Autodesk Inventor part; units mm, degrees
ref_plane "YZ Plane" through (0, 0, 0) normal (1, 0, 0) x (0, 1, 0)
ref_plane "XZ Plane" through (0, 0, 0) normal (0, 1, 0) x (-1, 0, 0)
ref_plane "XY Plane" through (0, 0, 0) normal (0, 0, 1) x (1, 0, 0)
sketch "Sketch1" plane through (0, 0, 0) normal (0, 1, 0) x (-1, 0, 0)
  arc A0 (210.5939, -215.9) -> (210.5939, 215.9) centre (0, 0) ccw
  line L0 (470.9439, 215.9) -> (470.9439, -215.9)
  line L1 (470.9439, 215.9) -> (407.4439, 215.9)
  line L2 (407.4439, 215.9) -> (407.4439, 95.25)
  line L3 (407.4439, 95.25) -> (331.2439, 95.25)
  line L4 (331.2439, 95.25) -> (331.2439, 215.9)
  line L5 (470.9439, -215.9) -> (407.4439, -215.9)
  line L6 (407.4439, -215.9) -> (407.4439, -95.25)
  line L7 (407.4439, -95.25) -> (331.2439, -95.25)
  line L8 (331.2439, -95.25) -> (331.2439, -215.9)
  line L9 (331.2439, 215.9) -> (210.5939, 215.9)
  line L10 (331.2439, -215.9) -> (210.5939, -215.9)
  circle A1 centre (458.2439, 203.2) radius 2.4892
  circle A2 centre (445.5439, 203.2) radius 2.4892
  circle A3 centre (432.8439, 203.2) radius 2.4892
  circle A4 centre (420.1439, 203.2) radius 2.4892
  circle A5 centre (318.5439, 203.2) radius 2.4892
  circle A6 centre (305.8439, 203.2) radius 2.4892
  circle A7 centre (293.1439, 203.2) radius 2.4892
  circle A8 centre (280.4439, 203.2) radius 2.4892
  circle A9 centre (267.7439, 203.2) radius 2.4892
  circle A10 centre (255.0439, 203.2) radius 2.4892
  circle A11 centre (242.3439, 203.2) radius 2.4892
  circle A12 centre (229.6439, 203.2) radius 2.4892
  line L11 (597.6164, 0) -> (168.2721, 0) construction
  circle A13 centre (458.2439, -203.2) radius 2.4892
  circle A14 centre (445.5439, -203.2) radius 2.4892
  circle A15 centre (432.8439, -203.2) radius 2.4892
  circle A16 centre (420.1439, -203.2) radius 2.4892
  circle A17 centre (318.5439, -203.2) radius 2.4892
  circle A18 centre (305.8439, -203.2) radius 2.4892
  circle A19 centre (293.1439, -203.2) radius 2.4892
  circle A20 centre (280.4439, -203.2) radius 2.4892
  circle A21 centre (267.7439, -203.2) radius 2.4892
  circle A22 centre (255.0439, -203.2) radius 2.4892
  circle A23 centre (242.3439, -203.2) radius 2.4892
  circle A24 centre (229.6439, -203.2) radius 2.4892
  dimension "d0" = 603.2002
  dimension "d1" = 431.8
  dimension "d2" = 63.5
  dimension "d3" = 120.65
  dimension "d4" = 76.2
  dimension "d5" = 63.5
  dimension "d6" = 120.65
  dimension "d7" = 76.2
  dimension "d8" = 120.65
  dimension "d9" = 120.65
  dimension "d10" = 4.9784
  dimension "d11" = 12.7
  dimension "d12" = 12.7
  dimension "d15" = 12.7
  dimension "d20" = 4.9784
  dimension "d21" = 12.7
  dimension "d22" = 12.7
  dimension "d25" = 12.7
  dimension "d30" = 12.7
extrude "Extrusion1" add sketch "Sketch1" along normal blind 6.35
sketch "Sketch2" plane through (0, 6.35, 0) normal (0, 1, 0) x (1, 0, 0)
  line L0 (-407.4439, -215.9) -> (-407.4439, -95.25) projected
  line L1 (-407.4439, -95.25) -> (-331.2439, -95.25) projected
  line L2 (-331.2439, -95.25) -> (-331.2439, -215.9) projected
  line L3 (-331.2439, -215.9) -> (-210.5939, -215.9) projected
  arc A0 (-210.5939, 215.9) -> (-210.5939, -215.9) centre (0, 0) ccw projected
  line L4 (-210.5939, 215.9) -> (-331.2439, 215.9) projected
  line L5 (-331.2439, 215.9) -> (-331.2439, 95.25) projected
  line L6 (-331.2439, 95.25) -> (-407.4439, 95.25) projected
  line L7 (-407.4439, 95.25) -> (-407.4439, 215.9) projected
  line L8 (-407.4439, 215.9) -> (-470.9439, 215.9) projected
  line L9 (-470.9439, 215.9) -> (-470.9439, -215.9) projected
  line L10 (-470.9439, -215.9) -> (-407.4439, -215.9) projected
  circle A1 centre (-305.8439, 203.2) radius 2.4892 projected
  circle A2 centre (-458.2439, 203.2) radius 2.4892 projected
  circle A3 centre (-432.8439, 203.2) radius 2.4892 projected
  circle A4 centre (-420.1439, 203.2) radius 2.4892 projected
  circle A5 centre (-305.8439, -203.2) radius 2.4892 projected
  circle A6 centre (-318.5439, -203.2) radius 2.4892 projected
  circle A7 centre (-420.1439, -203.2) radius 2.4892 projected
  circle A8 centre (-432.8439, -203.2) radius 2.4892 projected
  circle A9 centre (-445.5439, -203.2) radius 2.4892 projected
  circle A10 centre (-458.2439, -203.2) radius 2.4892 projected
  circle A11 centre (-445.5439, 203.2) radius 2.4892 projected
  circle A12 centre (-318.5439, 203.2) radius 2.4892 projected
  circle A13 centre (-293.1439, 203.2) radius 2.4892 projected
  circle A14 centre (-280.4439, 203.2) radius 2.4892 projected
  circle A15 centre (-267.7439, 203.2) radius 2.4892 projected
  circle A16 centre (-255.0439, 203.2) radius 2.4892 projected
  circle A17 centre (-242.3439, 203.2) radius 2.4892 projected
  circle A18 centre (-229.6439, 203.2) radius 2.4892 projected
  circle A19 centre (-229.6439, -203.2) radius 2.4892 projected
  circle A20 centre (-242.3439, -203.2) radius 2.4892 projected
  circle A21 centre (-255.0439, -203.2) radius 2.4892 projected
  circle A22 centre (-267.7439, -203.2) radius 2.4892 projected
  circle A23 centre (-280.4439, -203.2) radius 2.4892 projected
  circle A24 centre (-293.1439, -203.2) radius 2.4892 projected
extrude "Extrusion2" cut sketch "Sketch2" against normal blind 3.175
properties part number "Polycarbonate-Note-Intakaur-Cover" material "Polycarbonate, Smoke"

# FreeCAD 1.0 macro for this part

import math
import FreeCAD as App
import Part
import Sketcher
from FreeCAD import Vector
Q = App.Units.Quantity

doc = App.newDocument("Part")
body = doc.addObject("PartDesign::Body", "Body")

sketch1 = doc.addObject("Sketcher::SketchObject", "Sketch")
body.addObject(sketch1)
sketch1.AttachmentSupport = (doc.XZ_Plane, [""])
sketch1.MapMode = "FlatFace"
sketch1.addGeometry([
    Part.ArcOfCircle(Part.Circle(Vector(0, 0, 0), Vector(0, 0, 1), 301.6), math.radians(134), math.radians(226)),
    Part.LineSegment(Vector(-210.6, -215.9, 0), Vector(-331.2, -215.9, 0)),
    Part.LineSegment(Vector(-331.2, -215.9, 0), Vector(-331.2, -95.2, 0)),
    Part.LineSegment(Vector(-331.2, -95.2, 0), Vector(-407.4, -95.2, 0)),
    Part.LineSegment(Vector(-407.4, -95.2, 0), Vector(-407.4, -215.9, 0)),
    Part.LineSegment(Vector(-407.4, -215.9, 0), Vector(-470.9, -215.9, 0)),
    Part.LineSegment(Vector(-470.9, -215.9, 0), Vector(-470.9, 215.9, 0)),
    Part.LineSegment(Vector(-470.9, 215.9, 0), Vector(-407.4, 215.9, 0)),
    Part.LineSegment(Vector(-407.4, 215.9, 0), Vector(-407.4, 95.2, 0)),
    Part.LineSegment(Vector(-407.4, 95.2, 0), Vector(-331.2, 95.2, 0)),
    Part.LineSegment(Vector(-331.2, 95.2, 0), Vector(-331.2, 215.9, 0)),
    Part.LineSegment(Vector(-331.2, 215.9, 0), Vector(-210.6, 215.9, 0)),
    Part.Circle(Vector(-229.6, -203.2, 0), Vector(0, 0, 1), 2.5),
    Part.Circle(Vector(-242.3, -203.2, 0), Vector(0, 0, 1), 2.5),
    Part.Circle(Vector(-255, -203.2, 0), Vector(0, 0, 1), 2.5),
    Part.Circle(Vector(-267.7, -203.2, 0), Vector(0, 0, 1), 2.5),
    Part.Circle(Vector(-280.4, -203.2, 0), Vector(0, 0, 1), 2.5),
    Part.Circle(Vector(-293.1, -203.2, 0), Vector(0, 0, 1), 2.5),
    Part.Circle(Vector(-305.8, -203.2, 0), Vector(0, 0, 1), 2.5),
    Part.Circle(Vector(-318.5, -203.2, 0), Vector(0, 0, 1), 2.5),
    Part.Circle(Vector(-420.1, -203.2, 0), Vector(0, 0, 1), 2.5),
    Part.Circle(Vector(-432.8, -203.2, 0), Vector(0, 0, 1), 2.5),
    Part.Circle(Vector(-445.5, -203.2, 0), Vector(0, 0, 1), 2.5),
    Part.Circle(Vector(-458.2, -203.2, 0), Vector(0, 0, 1), 2.5),
    Part.Circle(Vector(-229.6, 203.2, 0), Vector(0, 0, 1), 2.5),
    Part.Circle(Vector(-242.3, 203.2, 0), Vector(0, 0, 1), 2.5),
    Part.Circle(Vector(-255, 203.2, 0), Vector(0, 0, 1), 2.5),
    Part.Circle(Vector(-267.7, 203.2, 0), Vector(0, 0, 1), 2.5),
    Part.Circle(Vector(-280.4, 203.2, 0), Vector(0, 0, 1), 2.5),
    Part.Circle(Vector(-293.1, 203.2, 0), Vector(0, 0, 1), 2.5),
    Part.Circle(Vector(-305.8, 203.2, 0), Vector(0, 0, 1), 2.5),
    Part.Circle(Vector(-318.5, 203.2, 0), Vector(0, 0, 1), 2.5),
    Part.Circle(Vector(-420.1, 203.2, 0), Vector(0, 0, 1), 2.5),
    Part.Circle(Vector(-432.8, 203.2, 0), Vector(0, 0, 1), 2.5),
    Part.Circle(Vector(-445.5, 203.2, 0), Vector(0, 0, 1), 2.5),
    Part.Circle(Vector(-458.2, 203.2, 0), Vector(0, 0, 1), 2.5),
], False)
sketch1.addConstraint([
    Sketcher.Constraint("Coincident", 0, 2, 1, 1),
    Sketcher.Constraint("Coincident", 1, 2, 2, 1),
    Sketcher.Constraint("Coincident", 2, 2, 3, 1),
    Sketcher.Constraint("Coincident", 3, 2, 4, 1),
    Sketcher.Constraint("Coincident", 4, 2, 5, 1),
    Sketcher.Constraint("Coincident", 5, 2, 6, 1),
    Sketcher.Constraint("Coincident", 6, 2, 7, 1),
    Sketcher.Constraint("Coincident", 7, 2, 8, 1),
    Sketcher.Constraint("Coincident", 8, 2, 9, 1),
    Sketcher.Constraint("Coincident", 9, 2, 10, 1),
    Sketcher.Constraint("Coincident", 10, 2, 11, 1),
    Sketcher.Constraint("Coincident", 11, 2, 0, 1),
    Sketcher.Constraint("Horizontal", 1),
    Sketcher.Constraint("Vertical", 2),
    Sketcher.Constraint("Horizontal", 3),
    Sketcher.Constraint("Vertical", 4),
    Sketcher.Constraint("Horizontal", 5),
    Sketcher.Constraint("Vertical", 6),
    Sketcher.Constraint("Horizontal", 7),
    Sketcher.Constraint("Vertical", 8),
    Sketcher.Constraint("Horizontal", 9),
    Sketcher.Constraint("Vertical", 10),
    Sketcher.Constraint("Horizontal", 11),
    Sketcher.Constraint("Coincident", 0, 3, -1, 1),
    Sketcher.Constraint("Equal", 12, 13),
    Sketcher.Constraint("Equal", 13, 14),
    Sketcher.Constraint("Equal", 14, 15),
    Sketcher.Constraint("Equal", 15, 16),
    Sketcher.Constraint("Equal", 16, 17),
    Sketcher.Constraint("Equal", 17, 18),
    Sketcher.Constraint("Equal", 18, 19),
    Sketcher.Constraint("Equal", 19, 20),
    Sketcher.Constraint("Equal", 20, 21),
    Sketcher.Constraint("Equal", 21, 22),
    Sketcher.Constraint("Equal", 22, 23),
    Sketcher.Constraint("Equal", 23, 24),
    Sketcher.Constraint("Equal", 24, 25),
    Sketcher.Constraint("Equal", 25, 26),
    Sketcher.Constraint("Equal", 26, 27),
    Sketcher.Constraint("Equal", 27, 28),
    Sketcher.Constraint("Equal", 28, 29),
    Sketcher.Constraint("Equal", 29, 30),
    Sketcher.Constraint("Equal", 30, 31),
    Sketcher.Constraint("Equal", 31, 32),
    Sketcher.Constraint("Equal", 32, 33),
    Sketcher.Constraint("Equal", 33, 34),
    Sketcher.Constraint("Equal", 34, 35),
    Sketcher.Constraint("Symmetric", 12, 3, 24, 3, -1),
    Sketcher.Constraint("Symmetric", 13, 3, 25, 3, -1),
    Sketcher.Constraint("Symmetric", 14, 3, 26, 3, -1),
    Sketcher.Constraint("Symmetric", 15, 3, 27, 3, -1),
    Sketcher.Constraint("Symmetric", 16, 3, 28, 3, -1),
    Sketcher.Constraint("Symmetric", 17, 3, 29, 3, -1),
    Sketcher.Constraint("Symmetric", 18, 3, 30, 3, -1),
    Sketcher.Constraint("Symmetric", 19, 3, 31, 3, -1),
    Sketcher.Constraint("Symmetric", 20, 3, 32, 3, -1),
    Sketcher.Constraint("Symmetric", 21, 3, 33, 3, -1),
    Sketcher.Constraint("Symmetric", 22, 3, 34, 3, -1),
    Sketcher.Constraint("Symmetric", 23, 3, 35, 3, -1),
    Sketcher.Constraint("Symmetric", 4, 2, 7, 2, -1),
    Sketcher.Constraint("Symmetric", 2, 2, 9, 2, -1),
    Sketcher.Constraint("Horizontal", 12, 3, 13, 3),
    Sketcher.Constraint("Horizontal", 13, 3, 14, 3),
    Sketcher.Constraint("Horizontal", 14, 3, 15, 3),
    Sketcher.Constraint("Horizontal", 15, 3, 16, 3),
    Sketcher.Constraint("Horizontal", 16, 3, 17, 3),
    Sketcher.Constraint("Horizontal", 17, 3, 18, 3),
    Sketcher.Constraint("Horizontal", 18, 3, 19, 3),
    Sketcher.Constraint("Horizontal", 19, 3, 20, 3),
    Sketcher.Constraint("Horizontal", 20, 3, 21, 3),
    Sketcher.Constraint("Horizontal", 21, 3, 22, 3),
    Sketcher.Constraint("Horizontal", 22, 3, 23, 3),
    Sketcher.Constraint("Horizontal", 1, 2, 4, 2),
    Sketcher.Constraint("Horizontal", 7, 2, 10, 2),
    Sketcher.Constraint("Equal", 11, 2),
    Sketcher.Constraint("DistanceX", 3, 2, 3, 1, Q("3 in")),
    Sketcher.Constraint("DistanceY", 6, 1, 6, 2, Q("17 in")),
    Sketcher.Constraint("Diameter", 12, Q("0.196 in")),
    Sketcher.Constraint("DistanceX", 5, 2, 5, 1, Q("2.5 in")),
    Sketcher.Constraint("DistanceX", 14, 3, 12, 3, Q("1 in")),
    Sketcher.Constraint("DistanceX", 15, 3, 13, 3, Q("1 in")),
    Sketcher.Constraint("DistanceX", 16, 3, 14, 3, Q("1 in")),
    Sketcher.Constraint("DistanceX", 17, 3, 15, 3, Q("1 in")),
    Sketcher.Constraint("DistanceX", 18, 3, 16, 3, Q("1 in")),
    Sketcher.Constraint("DistanceX", 19, 3, 17, 3, Q("1 in")),
    Sketcher.Constraint("DistanceX", 22, 3, 20, 3, Q("1 in")),
    Sketcher.Constraint("DistanceX", 23, 3, 21, 3, Q("1 in")),
    Sketcher.Constraint("DistanceX", 1, 2, 18, 3, Q("1 in")),
    Sketcher.Constraint("DistanceX", 21, 3, 3, 2, Q("1 in")),
    Sketcher.Constraint("DistanceX", 5, 2, 22, 3, Q("1 in")),
    Sketcher.Constraint("DistanceX", 1, 2, 1, 1, Q("4.75 in")),
    Sketcher.Constraint("DistanceX", 13, 3, 12, 3, Q("0.5 in")),
    Sketcher.Constraint("DistanceY", 1, 2, 19, 3, Q("0.5 in")),
    Sketcher.Constraint("Radius", 0, Q("301.6 mm")),
])
pad1 = doc.addObject("PartDesign::Pad", "Pad")
body.addObject(pad1)
pad1.Profile = sketch1
pad1.Length = Q("0.25 in")
pad1.Reversed = True

sketch2 = doc.addObject("Sketcher::SketchObject", "Sketch001")
body.addObject(sketch2)
sketch2.AttachmentSupport = (doc.XZ_Plane, [""])
sketch2.MapMode = "FlatFace"
sketch2.AttachmentOffset = App.Placement(Vector(0, 0, -0.25 * 25.4), App.Rotation())
sketch2.addGeometry([
    Part.LineSegment(Vector(-470.9, 215.9, 0), Vector(-407.4, 215.9, 0)),
    Part.LineSegment(Vector(-407.4, 215.9, 0), Vector(-407.4, 95.2, 0)),
    Part.LineSegment(Vector(-407.4, 95.2, 0), Vector(-331.2, 95.2, 0)),
    Part.LineSegment(Vector(-331.2, 95.2, 0), Vector(-331.2, 215.9, 0)),
    Part.LineSegment(Vector(-331.2, 215.9, 0), Vector(-210.6, 215.9, 0)),
    Part.ArcOfCircle(Part.Circle(Vector(0, 0, 0), Vector(0, 0, 1), 301.6), math.radians(134), math.radians(226)),
    Part.LineSegment(Vector(-210.6, -215.9, 0), Vector(-331.2, -215.9, 0)),
    Part.LineSegment(Vector(-331.2, -215.9, 0), Vector(-331.2, -95.2, 0)),
    Part.LineSegment(Vector(-331.2, -95.2, 0), Vector(-407.4, -95.2, 0)),
    Part.LineSegment(Vector(-407.4, -95.2, 0), Vector(-407.4, -215.9, 0)),
    Part.LineSegment(Vector(-407.4, -215.9, 0), Vector(-470.9, -215.9, 0)),
    Part.LineSegment(Vector(-470.9, -215.9, 0), Vector(-470.9, 215.9, 0)),
    Part.Circle(Vector(-458.2, 203.2, 0), Vector(0, 0, 1), 2.5),
    Part.Circle(Vector(-445.5, 203.2, 0), Vector(0, 0, 1), 2.5),
    Part.Circle(Vector(-432.8, 203.2, 0), Vector(0, 0, 1), 2.5),
    Part.Circle(Vector(-420.1, 203.2, 0), Vector(0, 0, 1), 2.5),
    Part.Circle(Vector(-318.5, 203.2, 0), Vector(0, 0, 1), 2.5),
    Part.Circle(Vector(-305.8, 203.2, 0), Vector(0, 0, 1), 2.5),
    Part.Circle(Vector(-293.1, 203.2, 0), Vector(0, 0, 1), 2.5),
    Part.Circle(Vector(-280.4, 203.2, 0), Vector(0, 0, 1), 2.5),
    Part.Circle(Vector(-267.7, 203.2, 0), Vector(0, 0, 1), 2.5),
    Part.Circle(Vector(-255, 203.2, 0), Vector(0, 0, 1), 2.5),
    Part.Circle(Vector(-242.3, 203.2, 0), Vector(0, 0, 1), 2.5),
    Part.Circle(Vector(-229.6, 203.2, 0), Vector(0, 0, 1), 2.5),
    Part.Circle(Vector(-458.2, -203.2, 0), Vector(0, 0, 1), 2.5),
    Part.Circle(Vector(-445.5, -203.2, 0), Vector(0, 0, 1), 2.5),
    Part.Circle(Vector(-432.8, -203.2, 0), Vector(0, 0, 1), 2.5),
    Part.Circle(Vector(-420.1, -203.2, 0), Vector(0, 0, 1), 2.5),
    Part.Circle(Vector(-318.5, -203.2, 0), Vector(0, 0, 1), 2.5),
    Part.Circle(Vector(-305.8, -203.2, 0), Vector(0, 0, 1), 2.5),
    Part.Circle(Vector(-293.1, -203.2, 0), Vector(0, 0, 1), 2.5),
    Part.Circle(Vector(-280.4, -203.2, 0), Vector(0, 0, 1), 2.5),
    Part.Circle(Vector(-267.7, -203.2, 0), Vector(0, 0, 1), 2.5),
    Part.Circle(Vector(-255, -203.2, 0), Vector(0, 0, 1), 2.5),
    Part.Circle(Vector(-242.3, -203.2, 0), Vector(0, 0, 1), 2.5),
    Part.Circle(Vector(-229.6, -203.2, 0), Vector(0, 0, 1), 2.5),
], False)
sketch2.addConstraint([
    Sketcher.Constraint("Coincident", 0, 2, 1, 1),
    Sketcher.Constraint("Coincident", 1, 2, 2, 1),
    Sketcher.Constraint("Coincident", 2, 2, 3, 1),
    Sketcher.Constraint("Coincident", 3, 2, 4, 1),
    Sketcher.Constraint("Coincident", 4, 2, 5, 1),
    Sketcher.Constraint("Coincident", 5, 2, 6, 1),
    Sketcher.Constraint("Coincident", 6, 2, 7, 1),
    Sketcher.Constraint("Coincident", 7, 2, 8, 1),
    Sketcher.Constraint("Coincident", 8, 2, 9, 1),
    Sketcher.Constraint("Coincident", 9, 2, 10, 1),
    Sketcher.Constraint("Coincident", 10, 2, 11, 1),
    Sketcher.Constraint("Coincident", 11, 2, 0, 1),
    Sketcher.Constraint("Horizontal", 0),
    Sketcher.Constraint("Vertical", 1),
    Sketcher.Constraint("Horizontal", 2),
    Sketcher.Constraint("Vertical", 3),
    Sketcher.Constraint("Horizontal", 4),
    Sketcher.Constraint("Horizontal", 6),
    Sketcher.Constraint("Vertical", 7),
    Sketcher.Constraint("Horizontal", 8),
    Sketcher.Constraint("Vertical", 9),
    Sketcher.Constraint("Horizontal", 10),
    Sketcher.Constraint("Vertical", 11),
    Sketcher.Constraint("Coincident", 5, 3, -1, 1),
    Sketcher.Constraint("Equal", 12, 13),
    Sketcher.Constraint("Equal", 13, 14),
    Sketcher.Constraint("Equal", 14, 15),
    Sketcher.Constraint("Equal", 15, 16),
    Sketcher.Constraint("Equal", 16, 17),
    Sketcher.Constraint("Equal", 17, 18),
    Sketcher.Constraint("Equal", 18, 19),
    Sketcher.Constraint("Equal", 19, 20),
    Sketcher.Constraint("Equal", 20, 21),
    Sketcher.Constraint("Equal", 21, 22),
    Sketcher.Constraint("Equal", 22, 23),
    Sketcher.Constraint("Equal", 23, 24),
    Sketcher.Constraint("Equal", 24, 25),
    Sketcher.Constraint("Equal", 25, 26),
    Sketcher.Constraint("Equal", 26, 27),
    Sketcher.Constraint("Equal", 27, 28),
    Sketcher.Constraint("Equal", 28, 29),
    Sketcher.Constraint("Equal", 29, 30),
    Sketcher.Constraint("Equal", 30, 31),
    Sketcher.Constraint("Equal", 31, 32),
    Sketcher.Constraint("Equal", 32, 33),
    Sketcher.Constraint("Equal", 33, 34),
    Sketcher.Constraint("Equal", 34, 35),
    Sketcher.Constraint("Symmetric", 12, 3, 24, 3, -1),
    Sketcher.Constraint("Symmetric", 13, 3, 25, 3, -1),
    Sketcher.Constraint("Symmetric", 14, 3, 26, 3, -1),
    Sketcher.Constraint("Symmetric", 15, 3, 27, 3, -1),
    Sketcher.Constraint("Symmetric", 16, 3, 28, 3, -1),
    Sketcher.Constraint("Symmetric", 17, 3, 29, 3, -1),
    Sketcher.Constraint("Symmetric", 18, 3, 30, 3, -1),
    Sketcher.Constraint("Symmetric", 19, 3, 31, 3, -1),
    Sketcher.Constraint("Symmetric", 20, 3, 32, 3, -1),
    Sketcher.Constraint("Symmetric", 21, 3, 33, 3, -1),
    Sketcher.Constraint("Symmetric", 22, 3, 34, 3, -1),
    Sketcher.Constraint("Symmetric", 23, 3, 35, 3, -1),
    Sketcher.Constraint("Symmetric", 3, 2, 6, 2, -1),
    Sketcher.Constraint("Symmetric", 1, 2, 8, 2, -1),
    Sketcher.Constraint("Horizontal", 12, 3, 13, 3),
    Sketcher.Constraint("Horizontal", 13, 3, 14, 3),
    Sketcher.Constraint("Horizontal", 14, 3, 15, 3),
    Sketcher.Constraint("Horizontal", 15, 3, 16, 3),
    Sketcher.Constraint("Horizontal", 16, 3, 17, 3),
    Sketcher.Constraint("Horizontal", 17, 3, 18, 3),
    Sketcher.Constraint("Horizontal", 18, 3, 19, 3),
    Sketcher.Constraint("Horizontal", 19, 3, 20, 3),
    Sketcher.Constraint("Horizontal", 20, 3, 21, 3),
    Sketcher.Constraint("Horizontal", 21, 3, 22, 3),
    Sketcher.Constraint("Horizontal", 22, 3, 23, 3),
    Sketcher.Constraint("Horizontal", 0, 2, 3, 2),
    Sketcher.Constraint("Horizontal", 6, 2, 9, 2),
    Sketcher.Constraint("Equal", 6, 1),
    Sketcher.Constraint("DistanceX", 2, 1, 2, 2, Q("3 in")),
    Sketcher.Constraint("DistanceY", 11, 1, 11, 2, Q("17 in")),
    Sketcher.Constraint("Diameter", 12, Q("0.196 in")),
    Sketcher.Constraint("DistanceX", 0, 1, 0, 2, Q("2.5 in")),
    Sketcher.Constraint("DistanceY", -1, 1, 12, 3, Q("8 in")),
    Sketcher.Constraint("DistanceX", 12, 3, 14, 3, Q("1 in")),
    Sketcher.Constraint("DistanceX", 13, 3, 15, 3, Q("1 in")),
    Sketcher.Constraint("DistanceX", 15, 3, 16, 3, Q("4 in")),
    Sketcher.Constraint("DistanceX", 14, 3, 17, 3, Q("5 in")),
    Sketcher.Constraint("DistanceX", 16, 3, 18, 3, Q("1 in")),
    Sketcher.Constraint("DistanceX", 17, 3, 19, 3, Q("1 in")),
    Sketcher.Constraint("DistanceX", 18, 3, 20, 3, Q("1 in")),
    Sketcher.Constraint("DistanceX", 19, 3, 21, 3, Q("1 in")),
    Sketcher.Constraint("DistanceX", 20, 3, 22, 3, Q("1 in")),
    Sketcher.Constraint("DistanceX", 21, 3, 23, 3, Q("1 in")),
    Sketcher.Constraint("DistanceX", 14, 3, 0, 2, Q("1 in")),
    Sketcher.Constraint("DistanceX", 10, 2, 25, 3, Q("1 in")),
    Sketcher.Constraint("DistanceX", 4, 1, 4, 2, Q("4.75 in")),
    Sketcher.Constraint("Radius", 5, Q("301.6 mm")),
])
pocket1 = doc.addObject("PartDesign::Pocket", "Pocket")
body.addObject(pocket1)
pocket1.Profile = sketch2
pocket1.Length = Q("0.125 in")
pocket1.Reversed = True

doc.recompute()
